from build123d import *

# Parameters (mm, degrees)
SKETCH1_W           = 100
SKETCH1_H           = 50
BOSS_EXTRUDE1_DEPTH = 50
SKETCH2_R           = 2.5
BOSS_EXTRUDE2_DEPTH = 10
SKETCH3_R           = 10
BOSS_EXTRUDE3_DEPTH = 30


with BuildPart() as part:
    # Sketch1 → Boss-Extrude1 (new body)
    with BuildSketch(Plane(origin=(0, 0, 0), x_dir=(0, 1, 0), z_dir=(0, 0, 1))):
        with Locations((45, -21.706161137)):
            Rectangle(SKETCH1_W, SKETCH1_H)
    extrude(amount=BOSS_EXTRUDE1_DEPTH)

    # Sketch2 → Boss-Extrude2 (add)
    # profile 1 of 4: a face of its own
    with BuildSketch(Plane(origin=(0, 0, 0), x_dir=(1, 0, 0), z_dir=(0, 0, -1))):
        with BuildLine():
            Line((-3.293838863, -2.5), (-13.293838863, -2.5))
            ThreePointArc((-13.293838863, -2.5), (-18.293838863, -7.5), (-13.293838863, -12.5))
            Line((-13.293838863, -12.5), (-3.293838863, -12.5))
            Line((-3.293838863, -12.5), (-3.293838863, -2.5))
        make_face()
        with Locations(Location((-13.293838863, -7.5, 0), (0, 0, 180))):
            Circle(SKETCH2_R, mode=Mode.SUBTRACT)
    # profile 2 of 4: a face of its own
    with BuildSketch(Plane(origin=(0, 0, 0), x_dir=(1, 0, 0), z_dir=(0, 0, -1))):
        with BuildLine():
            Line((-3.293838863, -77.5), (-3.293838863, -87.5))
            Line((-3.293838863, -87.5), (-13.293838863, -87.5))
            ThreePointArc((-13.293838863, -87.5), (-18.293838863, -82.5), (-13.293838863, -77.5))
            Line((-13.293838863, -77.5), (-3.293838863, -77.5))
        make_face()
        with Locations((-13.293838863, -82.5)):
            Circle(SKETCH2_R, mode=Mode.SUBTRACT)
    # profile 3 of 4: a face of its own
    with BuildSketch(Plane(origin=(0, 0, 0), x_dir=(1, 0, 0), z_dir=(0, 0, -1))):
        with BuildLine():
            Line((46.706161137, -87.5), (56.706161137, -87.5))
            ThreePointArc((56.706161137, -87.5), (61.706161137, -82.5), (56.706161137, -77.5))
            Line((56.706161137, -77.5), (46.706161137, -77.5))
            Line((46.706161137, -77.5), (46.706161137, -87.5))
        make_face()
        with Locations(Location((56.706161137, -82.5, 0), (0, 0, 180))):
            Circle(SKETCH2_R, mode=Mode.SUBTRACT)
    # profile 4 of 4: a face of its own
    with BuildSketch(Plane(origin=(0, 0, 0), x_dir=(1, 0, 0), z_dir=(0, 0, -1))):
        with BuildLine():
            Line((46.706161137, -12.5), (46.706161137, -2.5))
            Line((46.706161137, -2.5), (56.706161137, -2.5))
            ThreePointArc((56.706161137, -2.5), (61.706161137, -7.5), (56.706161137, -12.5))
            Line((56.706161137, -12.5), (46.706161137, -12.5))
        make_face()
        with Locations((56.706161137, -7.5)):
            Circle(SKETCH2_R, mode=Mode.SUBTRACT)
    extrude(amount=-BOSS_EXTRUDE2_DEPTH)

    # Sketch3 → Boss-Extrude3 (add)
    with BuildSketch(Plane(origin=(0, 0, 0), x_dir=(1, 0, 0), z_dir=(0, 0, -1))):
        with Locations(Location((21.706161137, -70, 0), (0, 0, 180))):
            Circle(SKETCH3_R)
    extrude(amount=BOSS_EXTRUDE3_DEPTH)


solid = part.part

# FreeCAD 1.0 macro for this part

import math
import FreeCAD as App
import Part
import Sketcher
from FreeCAD import Vector

doc = App.newDocument("Part")
body = doc.addObject("PartDesign::Body", "Body")

sketch1 = body.newObject("Sketcher::SketchObject", "Sketch")
sketch1.AttachmentSupport = (doc.getObject("XY_Plane"), [""])
sketch1.MapMode = "FlatFace"
sketch1.addGeometry(Part.LineSegment(Vector(-3.293839, -5, 0), Vector(46.706161, -5, 0)), False)
sketch1.addGeometry(Part.LineSegment(Vector(46.706161, -5, 0), Vector(46.706161, 95, 0)), False)
sketch1.addGeometry(Part.LineSegment(Vector(46.706161, 95, 0), Vector(-3.293839, 95, 0)), False)
sketch1.addGeometry(Part.LineSegment(Vector(-3.293839, 95, 0), Vector(-3.293839, -5, 0)), False)
sketch1.addConstraint(Sketcher.Constraint("Coincident", 0, 2, 1, 1))
sketch1.addConstraint(Sketcher.Constraint("Coincident", 1, 2, 2, 1))
sketch1.addConstraint(Sketcher.Constraint("Coincident", 2, 2, 3, 1))
sketch1.addConstraint(Sketcher.Constraint("Coincident", 3, 2, 0, 1))
sketch1.addConstraint(Sketcher.Constraint("Horizontal", 0))
sketch1.addConstraint(Sketcher.Constraint("Vertical", 1))
sketch1.addConstraint(Sketcher.Constraint("Horizontal", 2))
sketch1.addConstraint(Sketcher.Constraint("Vertical", 3))
sketch1.addConstraint(Sketcher.Constraint("DistanceX", 0, 1, 0, 2, 50.0))
sketch1.addConstraint(Sketcher.Constraint("DistanceY", 1, 1, 1, 2, 100.0))
sketch1.addConstraint(Sketcher.Constraint("DistanceY", 0, 2, -1, 1, 5.0))
sketch1.addConstraint(Sketcher.Constraint("DistanceX", -1, 1, 0, 2, 46.706161))
pad1 = body.newObject("PartDesign::Pad", "Pad")
pad1.Profile = sketch1
pad1.Length = 50

sketch2 = body.newObject("Sketcher::SketchObject", "Sketch001")
sketch2.AttachmentSupport = (doc.getObject("XY_Plane"), [""])
sketch2.MapMode = "FlatFace"
sketch2.addGeometry(Part.LineSegment(Vector(-3.293839, 2.5, 0), Vector(-13.293839, 2.5, 0)), False)
sketch2.addGeometry(Part.ArcOfCircle(Part.Circle(Vector(-13.293839, 7.5, 0), Vector(0, 0, 1), 5), math.radians(90), math.radians(270)), False)
sketch2.addGeometry(Part.LineSegment(Vector(-13.293839, 12.5, 0), Vector(-3.293839, 12.5, 0)), False)
sketch2.addGeometry(Part.LineSegment(Vector(-3.293839, 12.5, 0), Vector(-3.293839, 2.5, 0)), False)
sketch2.addGeometry(Part.Circle(Vector(-13.293839, 7.5, 0), Vector(0, 0, 1), 2.5), False)
sketch2.addGeometry(Part.LineSegment(Vector(-3.293839, 87.5, 0), Vector(-3.293839, 77.5, 0)), False)
sketch2.addGeometry(Part.LineSegment(Vector(-3.293839, 77.5, 0), Vector(-13.293839, 77.5, 0)), False)
sketch2.addGeometry(Part.ArcOfCircle(Part.Circle(Vector(-13.293839, 82.5, 0), Vector(0, 0, 1), 5), math.radians(90), math.radians(270)), False)
sketch2.addGeometry(Part.LineSegment(Vector(-13.293839, 87.5, 0), Vector(-3.293839, 87.5, 0)), False)
sketch2.addGeometry(Part.Circle(Vector(-13.293839, 82.5, 0), Vector(0, 0, 1), 2.5), False)
sketch2.addGeometry(Part.LineSegment(Vector(46.706161, 87.5, 0), Vector(56.706161, 87.5, 0)), False)
sketch2.addGeometry(Part.ArcOfCircle(Part.Circle(Vector(56.706161, 82.5, 0), Vector(0, 0, 1), 5), math.radians(-90), math.radians(90)), False)
sketch2.addGeometry(Part.LineSegment(Vector(56.706161, 77.5, 0), Vector(46.706161, 77.5, 0)), False)
sketch2.addGeometry(Part.LineSegment(Vector(46.706161, 77.5, 0), Vector(46.706161, 87.5, 0)), False)
sketch2.addGeometry(Part.Circle(Vector(56.706161, 82.5, 0), Vector(0, 0, 1), 2.5), False)
sketch2.addGeometry(Part.LineSegment(Vector(46.706161, 2.5, 0), Vector(46.706161, 12.5, 0)), False)
sketch2.addGeometry(Part.LineSegment(Vector(46.706161, 12.5, 0), Vector(56.706161, 12.5, 0)), False)
sketch2.addGeometry(Part.ArcOfCircle(Part.Circle(Vector(56.706161, 7.5, 0), Vector(0, 0, 1), 5), math.radians(-90), math.radians(90)), False)
sketch2.addGeometry(Part.LineSegment(Vector(56.706161, 2.5, 0), Vector(46.706161, 2.5, 0)), False)
sketch2.addGeometry(Part.Circle(Vector(56.706161, 7.5, 0), Vector(0, 0, 1), 2.5), False)
sketch2.addConstraint(Sketcher.Constraint("Tangent", 0, 2, 1, 2))
sketch2.addConstraint(Sketcher.Constraint("Tangent", 1, 1, 2, 1))
sketch2.addConstraint(Sketcher.Constraint("Coincident", 2, 2, 3, 1))
sketch2.addConstraint(Sketcher.Constraint("Coincident", 3, 2, 0, 1))
sketch2.addConstraint(Sketcher.Constraint("Coincident", 5, 2, 6, 1))
sketch2.addConstraint(Sketcher.Constraint("Tangent", 6, 2, 7, 2))
sketch2.addConstraint(Sketcher.Constraint("Tangent", 7, 1, 8, 1))
sketch2.addConstraint(Sketcher.Constraint("Coincident", 8, 2, 5, 1))
sketch2.addConstraint(Sketcher.Constraint("Tangent", 10, 2, 11, 2))
sketch2.addConstraint(Sketcher.Constraint("Tangent", 11, 1, 12, 1))
sketch2.addConstraint(Sketcher.Constraint("Coincident", 12, 2, 13, 1))
sketch2.addConstraint(Sketcher.Constraint("Coincident", 13, 2, 10, 1))
sketch2.addConstraint(Sketcher.Constraint("Coincident", 15, 2, 16, 1))
sketch2.addConstraint(Sketcher.Constraint("Tangent", 16, 2, 17, 2))
sketch2.addConstraint(Sketcher.Constraint("Tangent", 17, 1, 18, 1))
sketch2.addConstraint(Sketcher.Constraint("Coincident", 18, 2, 15, 1))
sketch2.addConstraint(Sketcher.Constraint("Horizontal", 0))
sketch2.addConstraint(Sketcher.Constraint("Horizontal", 2))
sketch2.addConstraint(Sketcher.Constraint("Vertical", 3))
sketch2.addConstraint(Sketcher.Constraint("Vertical", 5))
sketch2.addConstraint(Sketcher.Constraint("Horizontal", 6))
sketch2.addConstraint(Sketcher.Constraint("Horizontal", 8))
sketch2.addConstraint(Sketcher.Constraint("Horizontal", 10))
sketch2.addConstraint(Sketcher.Constraint("Horizontal", 12))
sketch2.addConstraint(Sketcher.Constraint("Vertical", 13))
sketch2.addConstraint(Sketcher.Constraint("Vertical", 15))
sketch2.addConstraint(Sketcher.Constraint("Horizontal", 16))
sketch2.addConstraint(Sketcher.Constraint("Horizontal", 18))
sketch2.addConstraint(Sketcher.Constraint("Coincident", 4, 3, 1, 3))
sketch2.addConstraint(Sketcher.Constraint("Coincident", 9, 3, 7, 3))
sketch2.addConstraint(Sketcher.Constraint("Coincident", 14, 3, 11, 3))
sketch2.addConstraint(Sketcher.Constraint("Coincident", 19, 3, 17, 3))
sketch2.addConstraint(Sketcher.Constraint("Equal", 1, 7))
sketch2.addConstraint(Sketcher.Constraint("Equal", 4, 9))
sketch2.addConstraint(Sketcher.Constraint("Equal", 7, 11))
sketch2.addConstraint(Sketcher.Constraint("Equal", 9, 14))
sketch2.addConstraint(Sketcher.Constraint("Equal", 11, 17))
sketch2.addConstraint(Sketcher.Constraint("Equal", 14, 19))
sketch2.addConstraint(Sketcher.Constraint("Horizontal", 9, 3, 11, 3))
sketch2.addConstraint(Sketcher.Constraint("Horizontal", 4, 3, 17, 3))
sketch2.addConstraint(Sketcher.Constraint("Vertical", 4, 3, 7, 3))
sketch2.addConstraint(Sketcher.Constraint("Vertical", 14, 3, 17, 3))
sketch2.addConstraint(Sketcher.Constraint("Vertical", 3, 2, 5, 2))
sketch2.addConstraint(Sketcher.Constraint("Vertical", 13, 2, 15, 2))
sketch2.addConstraint(Sketcher.Constraint("Equal", 8, 10))
sketch2.addConstraint(Sketcher.Constraint("Equal", 18, 3))
sketch2.addConstraint(Sketcher.Constraint("Diameter", 4, 5.0))
sketch2.addConstraint(Sketcher.Constraint("Radius", 1, 5.0))
sketch2.addConstraint(Sketcher.Constraint("DistanceY", 1, 3, 7, 3, 75.0))
sketch2.addConstraint(Sketcher.Constraint("DistanceX", 7, 3, 11, 3, 70.0))
sketch2.addConstraint(Sketcher.Constraint("DistanceY", -1, 1, 1, 3, 7.5))
sketch2.addConstraint(Sketcher.Constraint("DistanceX", 1, 3, -1, 1, 13.293839))
pad2 = body.newObject("PartDesign::Pad", "Pad001")
pad2.Profile = sketch2
pad2.Length = 10

sketch3 = body.newObject("Sketcher::SketchObject", "Sketch002")
sketch3.AttachmentSupport = (doc.getObject("XY_Plane"), [""])
sketch3.MapMode = "FlatFace"
sketch3.addGeometry(Part.Circle(Vector(21.706161, 70, 0), Vector(0, 0, 1), 10), False)
sketch3.addConstraint(Sketcher.Constraint("Diameter", 0, 20.0))
sketch3.addConstraint(Sketcher.Constraint("DistanceY", -1, 1, 0, 3, 70.0))
sketch3.addConstraint(Sketcher.Constraint("DistanceX", -1, 1, 0, 3, 21.706161))
pad3 = body.newObject("PartDesign::Pad", "Pad002")
pad3.Profile = sketch3
pad3.Length = 30
pad3.Reversed = True

doc.recompute()
